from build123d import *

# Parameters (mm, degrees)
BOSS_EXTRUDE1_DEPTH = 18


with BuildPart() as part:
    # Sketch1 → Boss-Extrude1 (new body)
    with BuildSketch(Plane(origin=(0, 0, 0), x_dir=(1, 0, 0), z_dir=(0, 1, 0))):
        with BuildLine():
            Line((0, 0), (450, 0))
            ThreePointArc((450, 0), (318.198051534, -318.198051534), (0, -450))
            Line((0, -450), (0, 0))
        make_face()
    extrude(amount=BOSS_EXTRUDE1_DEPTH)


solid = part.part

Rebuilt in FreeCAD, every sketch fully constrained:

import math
import FreeCAD as App
import Part
import Sketcher
from FreeCAD import Vector

doc = App.newDocument("Part")
body = doc.addObject("PartDesign::Body", "Body")

sketch1 = body.newObject("Sketcher::SketchObject", "Sketch")
sketch1.AttachmentSupport = (doc.getObject("XZ_Plane"), [""])
sketch1.MapMode = "FlatFace"
sketch1.addGeometry(Part.LineSegment(Vector(450, 0, 0), Vector(0, 0, 0)), False)
sketch1.addGeometry(Part.LineSegment(Vector(0, 0, 0), Vector(0, 450, 0)), False)
sketch1.addGeometry(Part.ArcOfCircle(Part.Circle(Vector(0, 0, 0), Vector(0, 0, 1), 450), math.radians(0), math.radians(90)), False)
sketch1.addConstraint(Sketcher.Constraint("Coincident", 0, 2, 1, 1))
sketch1.addConstraint(Sketcher.Constraint("Coincident", 1, 2, 2, 2))
sketch1.addConstraint(Sketcher.Constraint("Coincident", 2, 1, 0, 1))
sketch1.addConstraint(Sketcher.Constraint("Horizontal", 0))
sketch1.addConstraint(Sketcher.Constraint("Vertical", 1))
sketch1.addConstraint(Sketcher.Constraint("Coincident", 2, 3, -1, 1))
sketch1.addConstraint(Sketcher.Constraint("Coincident", 0, 2, -1, 1))
sketch1.addConstraint(Sketcher.Constraint("Radius", 2, 450.0))
pad1 = body.newObject("PartDesign::Pad", "Pad")
pad1.Profile = sketch1
pad1.Length = 18
pad1.Reversed = True

doc.recompute()
